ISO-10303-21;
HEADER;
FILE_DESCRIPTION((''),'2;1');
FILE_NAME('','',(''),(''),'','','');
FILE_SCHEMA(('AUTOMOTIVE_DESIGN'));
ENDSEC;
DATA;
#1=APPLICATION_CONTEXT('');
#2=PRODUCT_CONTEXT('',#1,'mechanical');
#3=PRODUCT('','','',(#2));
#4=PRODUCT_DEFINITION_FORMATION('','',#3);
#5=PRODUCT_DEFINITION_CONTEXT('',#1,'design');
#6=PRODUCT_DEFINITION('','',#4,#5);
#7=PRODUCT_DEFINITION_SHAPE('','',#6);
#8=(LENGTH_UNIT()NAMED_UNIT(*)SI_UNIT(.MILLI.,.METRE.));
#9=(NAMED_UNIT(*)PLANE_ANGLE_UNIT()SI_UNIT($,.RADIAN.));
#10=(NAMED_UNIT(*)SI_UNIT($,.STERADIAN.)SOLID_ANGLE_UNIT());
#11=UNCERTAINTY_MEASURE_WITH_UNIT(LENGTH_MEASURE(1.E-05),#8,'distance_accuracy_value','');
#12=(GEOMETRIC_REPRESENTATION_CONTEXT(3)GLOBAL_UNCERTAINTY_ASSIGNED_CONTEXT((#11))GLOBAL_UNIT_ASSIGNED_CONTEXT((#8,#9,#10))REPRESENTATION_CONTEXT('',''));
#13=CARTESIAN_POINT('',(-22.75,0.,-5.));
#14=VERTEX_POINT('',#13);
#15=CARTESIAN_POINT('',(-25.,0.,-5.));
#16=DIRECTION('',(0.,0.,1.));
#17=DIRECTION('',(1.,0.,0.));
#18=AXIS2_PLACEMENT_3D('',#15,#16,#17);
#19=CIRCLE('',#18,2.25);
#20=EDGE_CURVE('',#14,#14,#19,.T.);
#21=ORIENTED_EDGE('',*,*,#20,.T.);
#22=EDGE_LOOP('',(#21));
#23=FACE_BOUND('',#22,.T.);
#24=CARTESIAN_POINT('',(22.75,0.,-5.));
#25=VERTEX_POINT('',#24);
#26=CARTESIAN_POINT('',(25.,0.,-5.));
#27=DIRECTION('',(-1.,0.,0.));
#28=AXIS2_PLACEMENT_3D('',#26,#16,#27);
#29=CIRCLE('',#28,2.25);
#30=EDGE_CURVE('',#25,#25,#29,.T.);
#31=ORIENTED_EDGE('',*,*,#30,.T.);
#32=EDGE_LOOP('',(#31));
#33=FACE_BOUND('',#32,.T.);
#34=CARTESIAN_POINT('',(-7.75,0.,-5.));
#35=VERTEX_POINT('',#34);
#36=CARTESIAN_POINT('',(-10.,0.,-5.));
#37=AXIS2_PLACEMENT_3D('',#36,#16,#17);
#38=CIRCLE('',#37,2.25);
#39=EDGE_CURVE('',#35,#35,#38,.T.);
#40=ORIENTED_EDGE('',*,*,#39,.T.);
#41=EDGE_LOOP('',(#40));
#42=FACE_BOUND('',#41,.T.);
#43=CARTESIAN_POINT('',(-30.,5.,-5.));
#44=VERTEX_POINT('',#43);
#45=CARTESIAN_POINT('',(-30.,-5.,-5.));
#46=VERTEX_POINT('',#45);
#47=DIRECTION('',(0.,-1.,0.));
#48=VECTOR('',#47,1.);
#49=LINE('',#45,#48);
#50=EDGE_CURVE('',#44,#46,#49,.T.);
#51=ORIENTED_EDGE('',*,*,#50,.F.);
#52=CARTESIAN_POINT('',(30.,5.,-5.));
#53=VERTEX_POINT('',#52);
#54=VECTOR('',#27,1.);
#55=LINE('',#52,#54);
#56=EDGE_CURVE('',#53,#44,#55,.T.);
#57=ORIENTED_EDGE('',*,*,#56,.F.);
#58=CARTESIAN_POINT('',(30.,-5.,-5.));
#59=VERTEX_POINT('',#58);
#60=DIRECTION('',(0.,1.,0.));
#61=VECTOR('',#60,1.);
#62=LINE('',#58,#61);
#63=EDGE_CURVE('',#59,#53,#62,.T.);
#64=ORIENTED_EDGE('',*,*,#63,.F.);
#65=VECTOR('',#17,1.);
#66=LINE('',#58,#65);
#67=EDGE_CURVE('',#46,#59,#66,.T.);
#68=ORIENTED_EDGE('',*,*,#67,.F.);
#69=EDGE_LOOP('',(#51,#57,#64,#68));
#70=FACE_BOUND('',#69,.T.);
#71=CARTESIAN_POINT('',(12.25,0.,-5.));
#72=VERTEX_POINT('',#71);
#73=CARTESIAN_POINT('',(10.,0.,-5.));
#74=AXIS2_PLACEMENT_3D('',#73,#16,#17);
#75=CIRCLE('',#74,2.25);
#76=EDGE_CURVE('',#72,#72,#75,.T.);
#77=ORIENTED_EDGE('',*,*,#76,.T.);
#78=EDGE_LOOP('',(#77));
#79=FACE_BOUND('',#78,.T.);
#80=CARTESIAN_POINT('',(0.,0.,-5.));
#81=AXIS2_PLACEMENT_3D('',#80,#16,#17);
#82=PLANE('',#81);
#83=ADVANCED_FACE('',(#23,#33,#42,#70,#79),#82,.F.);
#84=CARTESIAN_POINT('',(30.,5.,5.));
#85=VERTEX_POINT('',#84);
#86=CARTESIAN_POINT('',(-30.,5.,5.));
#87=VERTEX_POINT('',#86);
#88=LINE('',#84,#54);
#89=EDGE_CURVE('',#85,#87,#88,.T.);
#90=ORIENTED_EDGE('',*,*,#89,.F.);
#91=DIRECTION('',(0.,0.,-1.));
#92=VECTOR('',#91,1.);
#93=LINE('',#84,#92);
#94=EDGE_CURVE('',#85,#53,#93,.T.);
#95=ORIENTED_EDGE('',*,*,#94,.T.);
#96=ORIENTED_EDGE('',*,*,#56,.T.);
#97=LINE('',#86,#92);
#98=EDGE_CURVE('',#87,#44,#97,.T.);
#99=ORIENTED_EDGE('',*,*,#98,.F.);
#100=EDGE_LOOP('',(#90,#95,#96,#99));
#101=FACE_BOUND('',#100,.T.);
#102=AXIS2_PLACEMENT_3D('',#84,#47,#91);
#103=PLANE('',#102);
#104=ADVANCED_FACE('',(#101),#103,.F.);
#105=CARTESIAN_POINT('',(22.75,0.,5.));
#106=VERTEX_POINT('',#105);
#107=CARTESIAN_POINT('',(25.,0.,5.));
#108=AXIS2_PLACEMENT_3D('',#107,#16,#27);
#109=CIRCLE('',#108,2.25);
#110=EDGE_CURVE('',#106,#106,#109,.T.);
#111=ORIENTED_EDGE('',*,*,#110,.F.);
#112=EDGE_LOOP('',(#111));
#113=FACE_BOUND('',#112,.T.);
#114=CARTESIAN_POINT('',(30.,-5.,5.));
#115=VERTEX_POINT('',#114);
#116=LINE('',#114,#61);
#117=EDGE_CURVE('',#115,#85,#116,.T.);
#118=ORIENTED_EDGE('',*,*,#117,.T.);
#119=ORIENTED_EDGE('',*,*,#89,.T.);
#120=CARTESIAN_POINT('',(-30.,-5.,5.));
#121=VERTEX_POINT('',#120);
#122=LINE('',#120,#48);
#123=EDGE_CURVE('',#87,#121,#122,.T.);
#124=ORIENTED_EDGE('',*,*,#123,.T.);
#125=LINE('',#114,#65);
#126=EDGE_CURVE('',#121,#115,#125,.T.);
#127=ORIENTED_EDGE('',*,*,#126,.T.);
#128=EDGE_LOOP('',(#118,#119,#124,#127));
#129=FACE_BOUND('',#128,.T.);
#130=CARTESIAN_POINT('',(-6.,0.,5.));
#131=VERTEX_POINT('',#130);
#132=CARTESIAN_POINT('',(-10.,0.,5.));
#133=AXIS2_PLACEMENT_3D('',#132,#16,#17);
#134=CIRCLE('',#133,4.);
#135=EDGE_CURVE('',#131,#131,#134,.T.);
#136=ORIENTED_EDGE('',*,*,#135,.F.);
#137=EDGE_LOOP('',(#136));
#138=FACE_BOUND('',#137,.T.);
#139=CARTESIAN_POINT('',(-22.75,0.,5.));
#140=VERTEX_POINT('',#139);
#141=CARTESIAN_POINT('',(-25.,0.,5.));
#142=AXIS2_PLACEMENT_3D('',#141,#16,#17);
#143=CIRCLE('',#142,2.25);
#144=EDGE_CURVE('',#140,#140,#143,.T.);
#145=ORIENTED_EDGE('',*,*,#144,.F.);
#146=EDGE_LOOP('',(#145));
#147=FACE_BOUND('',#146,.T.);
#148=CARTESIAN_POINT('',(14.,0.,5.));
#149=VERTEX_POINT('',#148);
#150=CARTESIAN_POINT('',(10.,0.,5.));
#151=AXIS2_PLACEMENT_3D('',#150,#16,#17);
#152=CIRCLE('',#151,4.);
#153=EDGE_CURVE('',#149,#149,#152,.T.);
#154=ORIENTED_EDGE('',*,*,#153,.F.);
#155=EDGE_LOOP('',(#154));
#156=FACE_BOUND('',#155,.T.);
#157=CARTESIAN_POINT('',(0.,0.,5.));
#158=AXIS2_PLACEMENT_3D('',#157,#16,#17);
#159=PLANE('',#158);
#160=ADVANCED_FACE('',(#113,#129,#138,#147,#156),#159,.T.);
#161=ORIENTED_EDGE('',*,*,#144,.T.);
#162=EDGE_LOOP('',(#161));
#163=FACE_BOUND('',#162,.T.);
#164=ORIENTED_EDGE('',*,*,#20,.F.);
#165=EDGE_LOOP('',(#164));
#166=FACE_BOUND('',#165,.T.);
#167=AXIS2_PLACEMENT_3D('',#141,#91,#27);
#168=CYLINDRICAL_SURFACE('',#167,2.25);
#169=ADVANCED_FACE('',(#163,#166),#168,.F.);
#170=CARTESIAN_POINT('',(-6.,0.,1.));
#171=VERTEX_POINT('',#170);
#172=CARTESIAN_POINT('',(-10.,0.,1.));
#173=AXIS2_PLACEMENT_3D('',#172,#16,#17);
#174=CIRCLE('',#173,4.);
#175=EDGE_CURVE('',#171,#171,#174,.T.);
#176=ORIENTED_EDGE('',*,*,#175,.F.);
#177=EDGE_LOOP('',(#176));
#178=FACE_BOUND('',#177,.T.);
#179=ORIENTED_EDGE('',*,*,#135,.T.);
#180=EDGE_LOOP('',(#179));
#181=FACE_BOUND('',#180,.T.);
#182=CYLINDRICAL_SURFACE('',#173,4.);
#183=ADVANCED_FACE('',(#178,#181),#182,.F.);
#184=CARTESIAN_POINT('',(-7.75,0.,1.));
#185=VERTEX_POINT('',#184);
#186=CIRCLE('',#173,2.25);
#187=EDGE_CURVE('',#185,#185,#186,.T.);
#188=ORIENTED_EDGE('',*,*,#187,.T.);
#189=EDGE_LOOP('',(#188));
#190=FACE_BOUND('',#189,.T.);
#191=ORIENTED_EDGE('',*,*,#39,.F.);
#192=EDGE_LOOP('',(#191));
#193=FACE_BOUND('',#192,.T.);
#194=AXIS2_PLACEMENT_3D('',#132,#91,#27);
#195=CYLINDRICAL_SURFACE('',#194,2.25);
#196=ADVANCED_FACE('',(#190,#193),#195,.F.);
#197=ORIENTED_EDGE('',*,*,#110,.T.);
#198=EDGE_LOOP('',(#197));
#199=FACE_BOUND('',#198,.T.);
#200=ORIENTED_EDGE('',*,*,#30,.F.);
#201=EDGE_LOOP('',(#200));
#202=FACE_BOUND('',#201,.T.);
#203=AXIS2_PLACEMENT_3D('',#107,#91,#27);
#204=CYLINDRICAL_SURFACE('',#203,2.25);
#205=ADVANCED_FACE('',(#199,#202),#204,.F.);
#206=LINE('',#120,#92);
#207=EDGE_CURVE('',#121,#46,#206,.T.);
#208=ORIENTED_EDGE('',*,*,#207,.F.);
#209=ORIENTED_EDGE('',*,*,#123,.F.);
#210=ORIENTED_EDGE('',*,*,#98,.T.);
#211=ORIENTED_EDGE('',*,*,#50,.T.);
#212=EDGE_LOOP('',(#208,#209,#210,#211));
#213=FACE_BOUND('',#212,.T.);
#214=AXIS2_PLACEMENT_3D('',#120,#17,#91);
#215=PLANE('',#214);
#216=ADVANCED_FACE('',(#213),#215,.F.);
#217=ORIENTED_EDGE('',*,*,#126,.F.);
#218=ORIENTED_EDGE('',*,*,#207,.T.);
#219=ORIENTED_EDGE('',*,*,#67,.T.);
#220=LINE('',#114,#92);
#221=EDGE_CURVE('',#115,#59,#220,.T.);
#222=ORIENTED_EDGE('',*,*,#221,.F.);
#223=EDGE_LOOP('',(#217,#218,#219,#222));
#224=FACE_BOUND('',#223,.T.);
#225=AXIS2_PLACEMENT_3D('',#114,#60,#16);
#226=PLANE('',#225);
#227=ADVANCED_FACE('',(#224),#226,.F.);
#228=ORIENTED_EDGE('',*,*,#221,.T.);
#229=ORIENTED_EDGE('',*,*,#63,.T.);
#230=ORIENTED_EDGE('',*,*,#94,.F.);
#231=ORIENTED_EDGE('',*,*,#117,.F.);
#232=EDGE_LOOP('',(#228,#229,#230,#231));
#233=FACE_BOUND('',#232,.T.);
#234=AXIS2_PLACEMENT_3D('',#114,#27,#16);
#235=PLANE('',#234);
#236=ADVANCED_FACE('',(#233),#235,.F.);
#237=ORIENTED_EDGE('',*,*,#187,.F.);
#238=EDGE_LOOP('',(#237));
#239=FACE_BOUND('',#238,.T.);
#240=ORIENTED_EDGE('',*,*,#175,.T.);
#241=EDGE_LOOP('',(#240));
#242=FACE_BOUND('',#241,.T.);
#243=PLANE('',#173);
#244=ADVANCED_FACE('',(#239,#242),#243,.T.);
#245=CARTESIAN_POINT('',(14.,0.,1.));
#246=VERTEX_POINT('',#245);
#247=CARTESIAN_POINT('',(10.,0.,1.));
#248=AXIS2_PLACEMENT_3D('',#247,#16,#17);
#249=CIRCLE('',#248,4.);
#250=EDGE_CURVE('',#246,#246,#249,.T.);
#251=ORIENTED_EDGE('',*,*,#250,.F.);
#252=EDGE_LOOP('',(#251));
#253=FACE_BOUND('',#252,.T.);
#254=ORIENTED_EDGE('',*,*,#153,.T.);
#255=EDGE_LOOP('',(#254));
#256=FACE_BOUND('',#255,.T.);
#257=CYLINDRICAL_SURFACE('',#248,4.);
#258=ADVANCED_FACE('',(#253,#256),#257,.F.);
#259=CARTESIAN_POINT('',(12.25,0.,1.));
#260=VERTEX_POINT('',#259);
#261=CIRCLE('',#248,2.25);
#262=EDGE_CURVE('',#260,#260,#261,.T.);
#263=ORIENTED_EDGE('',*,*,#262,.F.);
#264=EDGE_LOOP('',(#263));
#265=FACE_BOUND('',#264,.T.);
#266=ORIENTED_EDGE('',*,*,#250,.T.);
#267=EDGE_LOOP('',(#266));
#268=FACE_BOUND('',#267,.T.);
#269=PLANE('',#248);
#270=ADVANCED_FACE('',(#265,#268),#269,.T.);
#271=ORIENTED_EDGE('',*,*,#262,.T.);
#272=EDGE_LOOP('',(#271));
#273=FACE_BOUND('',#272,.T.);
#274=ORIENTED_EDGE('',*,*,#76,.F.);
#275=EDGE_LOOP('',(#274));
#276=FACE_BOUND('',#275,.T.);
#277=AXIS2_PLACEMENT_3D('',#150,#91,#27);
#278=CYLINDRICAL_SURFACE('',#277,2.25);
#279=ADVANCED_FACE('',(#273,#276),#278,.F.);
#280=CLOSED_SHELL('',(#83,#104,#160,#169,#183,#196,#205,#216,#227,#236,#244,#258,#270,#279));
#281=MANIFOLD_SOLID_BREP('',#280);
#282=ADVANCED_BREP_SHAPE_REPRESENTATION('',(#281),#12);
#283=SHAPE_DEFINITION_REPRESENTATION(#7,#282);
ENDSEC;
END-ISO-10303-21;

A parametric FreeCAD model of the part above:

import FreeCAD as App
import Part
import Sketcher
from FreeCAD import Vector

doc = App.newDocument("Part")
body = doc.addObject("PartDesign::Body", "Body")

# Sketch on XY plane
sketch1 = doc.addObject("Sketcher::SketchObject", "Sketch")
body.addObject(sketch1)
sketch1.AttachmentSupport = (doc.XY_Plane, [""])
sketch1.MapMode = "FlatFace"
sketch1.addGeometry([
    Part.LineSegment(Vector(-30, 5, 0), Vector(-30, -5, 0)),  # 0
    Part.LineSegment(Vector(-30, -5, 0), Vector(30, -5, 0)),  # 1
    Part.LineSegment(Vector(30, -5, 0), Vector(30, 5, 0)),  # 2
    Part.LineSegment(Vector(30, 5, 0), Vector(-30, 5, 0)),  # 3
    Part.Circle(Vector(-25, 0, 0), Vector(0, 0, 1), 2.2),  # 4
    Part.Circle(Vector(-10, 0, 0), Vector(0, 0, 1), 2.2),  # 5
    Part.Circle(Vector(10, 0, 0), Vector(0, 0, 1), 2.2),  # 6
    Part.Circle(Vector(25, 0, 0), Vector(0, 0, 1), 2.2),  # 7
], False)
sketch1.addConstraint([
    Sketcher.Constraint("Coincident", 0, 2, 1, 1),
    Sketcher.Constraint("Coincident", 1, 2, 2, 1),
    Sketcher.Constraint("Coincident", 2, 2, 3, 1),
    Sketcher.Constraint("Coincident", 3, 2, 0, 1),
    Sketcher.Constraint("Vertical", 0),
    Sketcher.Constraint("Horizontal", 1),
    Sketcher.Constraint("Vertical", 2),
    Sketcher.Constraint("Horizontal", 3),
    Sketcher.Constraint("Equal", 4, 5),
    Sketcher.Constraint("Equal", 5, 6),
    Sketcher.Constraint("Equal", 6, 7),
    Sketcher.Constraint("Symmetric", 5, 3, 6, 3, -1, 1),
    Sketcher.Constraint("Symmetric", 4, 3, 7, 3, -1, 1),
    Sketcher.Constraint("Symmetric", 0, 2, 2, 2, -1, 1),
    Sketcher.Constraint("PointOnObject", 4, 3, -1),
    Sketcher.Constraint("PointOnObject", 5, 3, -1),
    Sketcher.Constraint("Diameter", 4, 4.5),
    Sketcher.Constraint("DistanceX", 1, 1, 1, 2, 60.0),
    Sketcher.Constraint("DistanceY", 0, 2, 0, 1, 10.0),
    Sketcher.Constraint("DistanceX", 4, 3, -1, 1, 25.0),
    Sketcher.Constraint("DistanceX", 5, 3, -1, 1, 10.0),
])
pad1 = doc.addObject("PartDesign::Pad", "Pad")
body.addObject(pad1)
pad1.Profile = sketch1
pad1.Length = 10
pad1.Midplane = True

# Sketch on XY plane
sketch2 = doc.addObject("Sketcher::SketchObject", "Sketch001")
body.addObject(sketch2)
sketch2.AttachmentSupport = (doc.XY_Plane, [""])
sketch2.MapMode = "FlatFace"
sketch2.AttachmentOffset = App.Placement(Vector(0, 0, 5), App.Rotation())
sketch2.addGeometry([
    Part.Circle(Vector(-10, 0, 0), Vector(0, 0, 1), 4),
    Part.Circle(Vector(10, 0, 0), Vector(0, 0, 1), 4),
], False)
sketch2.addConstraint([
    Sketcher.Constraint("Equal", 0, 1),
    Sketcher.Constraint("Symmetric", 0, 3, 1, 3, -1, 1),
    Sketcher.Constraint("PointOnObject", 0, 3, -1),
    Sketcher.Constraint("Diameter", 0, 8.0),
    Sketcher.Constraint("DistanceX", 0, 3, -1, 1, 10.0),
])
pocket1 = doc.addObject("PartDesign::Pocket", "Pocket")
body.addObject(pocket1)
pocket1.Profile = sketch2
pocket1.Length = 4

doc.recompute()
